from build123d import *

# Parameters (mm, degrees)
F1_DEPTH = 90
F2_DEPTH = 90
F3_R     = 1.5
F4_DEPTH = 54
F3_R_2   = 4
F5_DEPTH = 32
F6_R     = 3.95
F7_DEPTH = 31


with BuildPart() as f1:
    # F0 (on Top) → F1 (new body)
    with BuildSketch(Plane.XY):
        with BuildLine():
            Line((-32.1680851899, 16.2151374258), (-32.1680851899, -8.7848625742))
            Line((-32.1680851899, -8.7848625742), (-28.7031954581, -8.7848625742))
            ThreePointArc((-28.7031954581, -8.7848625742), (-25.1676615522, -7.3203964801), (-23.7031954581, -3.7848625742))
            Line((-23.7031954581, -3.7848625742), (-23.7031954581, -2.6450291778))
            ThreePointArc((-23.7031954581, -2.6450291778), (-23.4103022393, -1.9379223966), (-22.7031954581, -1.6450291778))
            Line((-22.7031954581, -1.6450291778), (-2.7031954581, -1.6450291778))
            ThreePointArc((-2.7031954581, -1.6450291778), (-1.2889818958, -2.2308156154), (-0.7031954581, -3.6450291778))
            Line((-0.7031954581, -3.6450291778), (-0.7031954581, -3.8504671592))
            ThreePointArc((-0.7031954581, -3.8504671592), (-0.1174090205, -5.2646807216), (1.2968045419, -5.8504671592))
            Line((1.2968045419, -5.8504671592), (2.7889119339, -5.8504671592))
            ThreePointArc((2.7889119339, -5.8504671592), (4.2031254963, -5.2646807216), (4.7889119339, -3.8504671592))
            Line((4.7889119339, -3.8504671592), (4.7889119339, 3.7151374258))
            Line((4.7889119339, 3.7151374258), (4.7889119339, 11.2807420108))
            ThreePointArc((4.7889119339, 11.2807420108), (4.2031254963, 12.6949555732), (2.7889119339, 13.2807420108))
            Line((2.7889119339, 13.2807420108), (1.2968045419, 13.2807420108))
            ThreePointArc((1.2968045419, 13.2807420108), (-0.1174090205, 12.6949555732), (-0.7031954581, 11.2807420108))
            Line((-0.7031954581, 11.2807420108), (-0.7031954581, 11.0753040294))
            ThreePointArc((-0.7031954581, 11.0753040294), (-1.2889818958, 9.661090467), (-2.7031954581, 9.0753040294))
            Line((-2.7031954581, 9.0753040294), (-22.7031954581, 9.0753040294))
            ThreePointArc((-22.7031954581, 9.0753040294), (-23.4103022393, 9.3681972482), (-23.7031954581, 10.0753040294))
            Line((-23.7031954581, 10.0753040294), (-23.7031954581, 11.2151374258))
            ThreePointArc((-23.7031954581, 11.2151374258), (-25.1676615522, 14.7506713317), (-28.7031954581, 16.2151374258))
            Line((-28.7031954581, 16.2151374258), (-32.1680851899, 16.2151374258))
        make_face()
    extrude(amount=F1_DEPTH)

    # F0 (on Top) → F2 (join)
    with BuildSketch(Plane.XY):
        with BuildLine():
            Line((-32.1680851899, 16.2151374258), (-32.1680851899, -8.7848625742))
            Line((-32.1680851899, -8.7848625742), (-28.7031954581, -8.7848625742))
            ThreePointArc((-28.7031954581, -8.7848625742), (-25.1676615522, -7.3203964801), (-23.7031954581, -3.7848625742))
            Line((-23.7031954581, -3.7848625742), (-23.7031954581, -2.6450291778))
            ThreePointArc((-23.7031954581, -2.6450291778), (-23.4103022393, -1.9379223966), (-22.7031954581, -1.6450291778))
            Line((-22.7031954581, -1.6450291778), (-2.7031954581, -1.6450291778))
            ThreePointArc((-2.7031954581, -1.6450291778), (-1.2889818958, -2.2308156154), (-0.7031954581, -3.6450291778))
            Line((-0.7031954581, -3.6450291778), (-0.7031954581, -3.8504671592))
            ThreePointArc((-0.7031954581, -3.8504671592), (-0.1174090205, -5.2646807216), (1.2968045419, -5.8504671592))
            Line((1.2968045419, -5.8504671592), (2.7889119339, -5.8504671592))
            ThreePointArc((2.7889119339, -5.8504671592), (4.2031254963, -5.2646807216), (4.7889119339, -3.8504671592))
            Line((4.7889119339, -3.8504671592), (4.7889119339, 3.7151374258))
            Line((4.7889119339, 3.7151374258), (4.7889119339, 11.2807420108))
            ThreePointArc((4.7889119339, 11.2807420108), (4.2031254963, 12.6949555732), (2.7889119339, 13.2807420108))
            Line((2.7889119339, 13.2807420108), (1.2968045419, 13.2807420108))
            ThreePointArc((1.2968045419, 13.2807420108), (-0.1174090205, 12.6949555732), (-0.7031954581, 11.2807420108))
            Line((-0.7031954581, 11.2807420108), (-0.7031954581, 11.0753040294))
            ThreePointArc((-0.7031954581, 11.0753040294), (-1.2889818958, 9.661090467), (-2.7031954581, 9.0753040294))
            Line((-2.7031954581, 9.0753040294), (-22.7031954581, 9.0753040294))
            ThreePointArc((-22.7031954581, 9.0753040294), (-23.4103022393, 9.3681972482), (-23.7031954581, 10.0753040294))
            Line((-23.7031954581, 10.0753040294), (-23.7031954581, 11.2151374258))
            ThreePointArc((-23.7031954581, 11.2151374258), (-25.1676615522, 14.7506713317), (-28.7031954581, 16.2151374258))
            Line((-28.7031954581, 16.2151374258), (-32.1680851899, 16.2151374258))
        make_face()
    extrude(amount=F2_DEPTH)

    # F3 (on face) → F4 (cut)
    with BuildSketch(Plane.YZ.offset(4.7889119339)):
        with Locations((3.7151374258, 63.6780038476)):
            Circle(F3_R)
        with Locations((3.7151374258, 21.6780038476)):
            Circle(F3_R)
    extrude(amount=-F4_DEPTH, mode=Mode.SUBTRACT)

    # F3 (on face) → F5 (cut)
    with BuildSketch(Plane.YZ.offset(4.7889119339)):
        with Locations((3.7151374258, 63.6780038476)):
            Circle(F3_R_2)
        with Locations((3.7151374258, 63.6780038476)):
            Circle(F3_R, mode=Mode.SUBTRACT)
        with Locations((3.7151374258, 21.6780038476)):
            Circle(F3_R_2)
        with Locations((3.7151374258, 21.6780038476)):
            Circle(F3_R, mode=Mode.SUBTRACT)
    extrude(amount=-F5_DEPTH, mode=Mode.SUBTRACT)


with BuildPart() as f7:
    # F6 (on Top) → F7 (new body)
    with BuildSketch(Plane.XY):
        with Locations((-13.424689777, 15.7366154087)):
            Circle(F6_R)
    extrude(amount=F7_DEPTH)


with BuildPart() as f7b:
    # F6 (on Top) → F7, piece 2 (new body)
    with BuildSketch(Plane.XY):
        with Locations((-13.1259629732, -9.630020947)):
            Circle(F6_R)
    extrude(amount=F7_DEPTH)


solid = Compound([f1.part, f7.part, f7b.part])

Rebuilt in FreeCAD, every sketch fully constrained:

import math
import FreeCAD as App
import Part
import Sketcher
Q = App.Units.Quantity

doc = App.newDocument("Part")
body = doc.addObject("PartDesign::Body", "Body")

# Sketch on XY plane
sketch1 = doc.addObject("Sketcher::SketchObject", "Sketch")
body.addObject(sketch1)
sketch1.AttachmentSupport = (doc.XY_Plane, [""])
sketch1.MapMode = "FlatFace"
sketch1.addGeometry(Part.LineSegment(App.Vector(-32.17, 16.22, 0), App.Vector(-32.17, -8.78, 0)), False)
sketch1.addGeometry(Part.LineSegment(App.Vector(-32.17, -8.78, 0), App.Vector(-28.7, -8.78, 0)), False)
sketch1.addGeometry(Part.ArcOfCircle(Part.Circle(App.Vector(-28.7, -3.78, 0), App.Vector(0, 0, 1), 5), math.radians(-90), math.radians(0)), False)
sketch1.addGeometry(Part.LineSegment(App.Vector(-23.7, -3.78, 0), App.Vector(-23.7, -2.65, 0)), False)
sketch1.addGeometry(Part.ArcOfCircle(Part.Circle(App.Vector(-22.7, -2.65, 0), App.Vector(0, 0, 1), 1), math.radians(90), math.radians(180)), False)
sketch1.addGeometry(Part.LineSegment(App.Vector(-22.7, -1.65, 0), App.Vector(-2.7, -1.65, 0)), False)
sketch1.addGeometry(Part.ArcOfCircle(Part.Circle(App.Vector(-2.7, -3.65, 0), App.Vector(0, 0, 1), 2), math.radians(0), math.radians(90)), False)
sketch1.addGeometry(Part.LineSegment(App.Vector(-0.7, -3.65, 0), App.Vector(-0.7, -3.85, 0)), False)
sketch1.addGeometry(Part.ArcOfCircle(Part.Circle(App.Vector(1.3, -3.85, 0), App.Vector(0, 0, 1), 2), math.radians(180), math.radians(270)), False)
sketch1.addGeometry(Part.LineSegment(App.Vector(1.3, -5.85, 0), App.Vector(2.79, -5.85, 0)), False)
sketch1.addGeometry(Part.ArcOfCircle(Part.Circle(App.Vector(2.79, -3.85, 0), App.Vector(0, 0, 1), 2), math.radians(-90), math.radians(0)), False)
sketch1.addGeometry(Part.LineSegment(App.Vector(4.79, -3.85, 0), App.Vector(4.79, 11.28, 0)), False)
sketch1.addGeometry(Part.ArcOfCircle(Part.Circle(App.Vector(2.79, 11.28, 0), App.Vector(0, 0, 1), 2), math.radians(0), math.radians(90)), False)
sketch1.addGeometry(Part.LineSegment(App.Vector(2.79, 13.28, 0), App.Vector(1.3, 13.28, 0)), False)
sketch1.addGeometry(Part.ArcOfCircle(Part.Circle(App.Vector(1.3, 11.28, 0), App.Vector(0, 0, 1), 2), math.radians(90), math.radians(180)), False)
sketch1.addGeometry(Part.LineSegment(App.Vector(-0.7, 11.28, 0), App.Vector(-0.7, 11.08, 0)), False)
sketch1.addGeometry(Part.ArcOfCircle(Part.Circle(App.Vector(-2.7, 11.08, 0), App.Vector(0, 0, 1), 2), math.radians(-90), math.radians(0)), False)
sketch1.addGeometry(Part.LineSegment(App.Vector(-2.7, 9.08, 0), App.Vector(-22.7, 9.08, 0)), False)
sketch1.addGeometry(Part.ArcOfCircle(Part.Circle(App.Vector(-22.7, 10.08, 0), App.Vector(0, 0, 1), 1), math.radians(180), math.radians(270)), False)
sketch1.addGeometry(Part.LineSegment(App.Vector(-23.7, 10.08, 0), App.Vector(-23.7, 11.22, 0)), False)
sketch1.addGeometry(Part.ArcOfCircle(Part.Circle(App.Vector(-28.7, 11.22, 0), App.Vector(0, 0, 1), 5), math.radians(0), math.radians(90)), False)
sketch1.addGeometry(Part.LineSegment(App.Vector(-28.7, 16.22, 0), App.Vector(-32.17, 16.22, 0)), False)
sketch1.addConstraint(Sketcher.Constraint("Coincident", 0, 2, 1, 1))
sketch1.addConstraint(Sketcher.Constraint("Tangent", 1, 2, 2, 1))
sketch1.addConstraint(Sketcher.Constraint("Tangent", 2, 2, 3, 1))
sketch1.addConstraint(Sketcher.Constraint("Tangent", 3, 2, 4, 2))
sketch1.addConstraint(Sketcher.Constraint("Tangent", 4, 1, 5, 1))
sketch1.addConstraint(Sketcher.Constraint("Tangent", 5, 2, 6, 2))
sketch1.addConstraint(Sketcher.Constraint("Tangent", 6, 1, 7, 1))
sketch1.addConstraint(Sketcher.Constraint("Tangent", 7, 2, 8, 1))
sketch1.addConstraint(Sketcher.Constraint("Tangent", 8, 2, 9, 1))
sketch1.addConstraint(Sketcher.Constraint("Tangent", 9, 2, 10, 1))
sketch1.addConstraint(Sketcher.Constraint("Tangent", 10, 2, 11, 1))
sketch1.addConstraint(Sketcher.Constraint("Tangent", 11, 2, 12, 1))
sketch1.addConstraint(Sketcher.Constraint("Tangent", 12, 2, 13, 1))
sketch1.addConstraint(Sketcher.Constraint("Tangent", 13, 2, 14, 1))
sketch1.addConstraint(Sketcher.Constraint("Tangent", 14, 2, 15, 1))
sketch1.addConstraint(Sketcher.Constraint("Tangent", 15, 2, 16, 2))
sketch1.addConstraint(Sketcher.Constraint("Tangent", 16, 1, 17, 1))
sketch1.addConstraint(Sketcher.Constraint("Tangent", 17, 2, 18, 2))
sketch1.addConstraint(Sketcher.Constraint("Tangent", 18, 1, 19, 1))
sketch1.addConstraint(Sketcher.Constraint("Tangent", 19, 2, 20, 1))
sketch1.addConstraint(Sketcher.Constraint("Tangent", 20, 2, 21, 1))
sketch1.addConstraint(Sketcher.Constraint("Coincident", 21, 2, 0, 1))
sketch1.addConstraint(Sketcher.Constraint("Vertical", 0))
sketch1.addConstraint(Sketcher.Constraint("Horizontal", 1))
sketch1.addConstraint(Sketcher.Constraint("Vertical", 3))
sketch1.addConstraint(Sketcher.Constraint("Horizontal", 5))
sketch1.addConstraint(Sketcher.Constraint("Vertical", 7))
sketch1.addConstraint(Sketcher.Constraint("Horizontal", 9))
sketch1.addConstraint(Sketcher.Constraint("Vertical", 11))
sketch1.addConstraint(Sketcher.Constraint("Horizontal", 13))
sketch1.addConstraint(Sketcher.Constraint("Vertical", 15))
sketch1.addConstraint(Sketcher.Constraint("Horizontal", 17))
sketch1.addConstraint(Sketcher.Constraint("Vertical", 19))
sketch1.addConstraint(Sketcher.Constraint("Horizontal", 21))
sketch1.addConstraint(Sketcher.Constraint("Equal", 6, 8))
sketch1.addConstraint(Sketcher.Constraint("Equal", 8, 10))
sketch1.addConstraint(Sketcher.Constraint("Equal", 10, 12))
sketch1.addConstraint(Sketcher.Constraint("Equal", 12, 14))
sketch1.addConstraint(Sketcher.Constraint("Equal", 14, 16))
sketch1.addConstraint(Sketcher.Constraint("Equal", 4, 18))
sketch1.addConstraint(Sketcher.Constraint("Equal", 2, 20))
sketch1.addConstraint(Sketcher.Constraint("Vertical", 8, 3, 14, 3))
sketch1.addConstraint(Sketcher.Constraint("Vertical", 4, 3, 18, 3))
sketch1.addConstraint(Sketcher.Constraint("Equal", 7, 15))
sketch1.addConstraint(Sketcher.Constraint("Equal", 3, 19))
sketch1.addConstraint(Sketcher.Constraint("Radius", 2, Q("5 mm")))
sketch1.addConstraint(Sketcher.Constraint("Radius", 4, Q("1 mm")))
sketch1.addConstraint(Sketcher.Constraint("Radius", 6, Q("2 mm")))
sketch1.addConstraint(Sketcher.Constraint("DistanceX", 5, 1, 5, 2, Q("20 mm")))
sketch1.addConstraint(Sketcher.Constraint("DistanceY", 0, 2, 0, 1, Q("25 mm")))
sketch1.addConstraint(Sketcher.Constraint("DistanceX", 1, 1, 1, 2, Q("3.46489 mm")))
sketch1.addConstraint(Sketcher.Constraint("DistanceY", 11, 1, 11, 2, Q("15.131209 mm")))
sketch1.addConstraint(Sketcher.Constraint("DistanceX", 9, 1, 9, 2, Q("1.492107 mm")))
sketch1.addConstraint(Sketcher.Constraint("DistanceY", 3, 1, 3, 2, Q("1.139833 mm")))
sketch1.addConstraint(Sketcher.Constraint("DistanceY", 4, 3, -1, 1, Q("2.645029 mm")))
sketch1.addConstraint(Sketcher.Constraint("DistanceX", -1, 1, 10, 3, Q("2.788912 mm")))
pad1 = doc.addObject("PartDesign::Pad", "Pad")
body.addObject(pad1)
pad1.Profile = sketch1
pad1.Length = 90

# Sketch on XY plane
sketch2 = doc.addObject("Sketcher::SketchObject", "Sketch001")
body.addObject(sketch2)
sketch2.AttachmentSupport = (doc.XY_Plane, [""])
sketch2.MapMode = "FlatFace"
sketch2.addGeometry(Part.LineSegment(App.Vector(-32.17, 16.22, 0), App.Vector(-32.17, -8.78, 0)), False)
sketch2.addGeometry(Part.LineSegment(App.Vector(-32.17, -8.78, 0), App.Vector(-28.7, -8.78, 0)), False)
sketch2.addGeometry(Part.ArcOfCircle(Part.Circle(App.Vector(-28.7, -3.78, 0), App.Vector(0, 0, 1), 5), math.radians(-90), math.radians(0)), False)
sketch2.addGeometry(Part.LineSegment(App.Vector(-23.7, -3.78, 0), App.Vector(-23.7, -2.65, 0)), False)
sketch2.addGeometry(Part.ArcOfCircle(Part.Circle(App.Vector(-22.7, -2.65, 0), App.Vector(0, 0, 1), 1), math.radians(90), math.radians(180)), False)
sketch2.addGeometry(Part.LineSegment(App.Vector(-22.7, -1.65, 0), App.Vector(-2.7, -1.65, 0)), False)
sketch2.addGeometry(Part.ArcOfCircle(Part.Circle(App.Vector(-2.7, -3.65, 0), App.Vector(0, 0, 1), 2), math.radians(0), math.radians(90)), False)
sketch2.addGeometry(Part.LineSegment(App.Vector(-0.7, -3.65, 0), App.Vector(-0.7, -3.85, 0)), False)
sketch2.addGeometry(Part.ArcOfCircle(Part.Circle(App.Vector(1.3, -3.85, 0), App.Vector(0, 0, 1), 2), math.radians(180), math.radians(270)), False)
sketch2.addGeometry(Part.LineSegment(App.Vector(1.3, -5.85, 0), App.Vector(2.79, -5.85, 0)), False)
sketch2.addGeometry(Part.ArcOfCircle(Part.Circle(App.Vector(2.79, -3.85, 0), App.Vector(0, 0, 1), 2), math.radians(-90), math.radians(0)), False)
sketch2.addGeometry(Part.LineSegment(App.Vector(4.79, -3.85, 0), App.Vector(4.79, 11.28, 0)), False)
sketch2.addGeometry(Part.ArcOfCircle(Part.Circle(App.Vector(2.79, 11.28, 0), App.Vector(0, 0, 1), 2), math.radians(0), math.radians(90)), False)
sketch2.addGeometry(Part.LineSegment(App.Vector(2.79, 13.28, 0), App.Vector(1.3, 13.28, 0)), False)
sketch2.addGeometry(Part.ArcOfCircle(Part.Circle(App.Vector(1.3, 11.28, 0), App.Vector(0, 0, 1), 2), math.radians(90), math.radians(180)), False)
sketch2.addGeometry(Part.LineSegment(App.Vector(-0.7, 11.28, 0), App.Vector(-0.7, 11.08, 0)), False)
sketch2.addGeometry(Part.ArcOfCircle(Part.Circle(App.Vector(-2.7, 11.08, 0), App.Vector(0, 0, 1), 2), math.radians(-90), math.radians(0)), False)
sketch2.addGeometry(Part.LineSegment(App.Vector(-2.7, 9.08, 0), App.Vector(-22.7, 9.08, 0)), False)
sketch2.addGeometry(Part.ArcOfCircle(Part.Circle(App.Vector(-22.7, 10.08, 0), App.Vector(0, 0, 1), 1), math.radians(180), math.radians(270)), False)
sketch2.addGeometry(Part.LineSegment(App.Vector(-23.7, 10.08, 0), App.Vector(-23.7, 11.22, 0)), False)
sketch2.addGeometry(Part.ArcOfCircle(Part.Circle(App.Vector(-28.7, 11.22, 0), App.Vector(0, 0, 1), 5), math.radians(0), math.radians(90)), False)
sketch2.addGeometry(Part.LineSegment(App.Vector(-28.7, 16.22, 0), App.Vector(-32.17, 16.22, 0)), False)
sketch2.addConstraint(Sketcher.Constraint("Coincident", 0, 2, 1, 1))
sketch2.addConstraint(Sketcher.Constraint("Tangent", 1, 2, 2, 1))
sketch2.addConstraint(Sketcher.Constraint("Tangent", 2, 2, 3, 1))
sketch2.addConstraint(Sketcher.Constraint("Tangent", 3, 2, 4, 2))
sketch2.addConstraint(Sketcher.Constraint("Tangent", 4, 1, 5, 1))
sketch2.addConstraint(Sketcher.Constraint("Tangent", 5, 2, 6, 2))
sketch2.addConstraint(Sketcher.Constraint("Tangent", 6, 1, 7, 1))
sketch2.addConstraint(Sketcher.Constraint("Tangent", 7, 2, 8, 1))
sketch2.addConstraint(Sketcher.Constraint("Tangent", 8, 2, 9, 1))
sketch2.addConstraint(Sketcher.Constraint("Tangent", 9, 2, 10, 1))
sketch2.addConstraint(Sketcher.Constraint("Tangent", 10, 2, 11, 1))
sketch2.addConstraint(Sketcher.Constraint("Tangent", 11, 2, 12, 1))
sketch2.addConstraint(Sketcher.Constraint("Tangent", 12, 2, 13, 1))
sketch2.addConstraint(Sketcher.Constraint("Tangent", 13, 2, 14, 1))
sketch2.addConstraint(Sketcher.Constraint("Tangent", 14, 2, 15, 1))
sketch2.addConstraint(Sketcher.Constraint("Tangent", 15, 2, 16, 2))
sketch2.addConstraint(Sketcher.Constraint("Tangent", 16, 1, 17, 1))
sketch2.addConstraint(Sketcher.Constraint("Tangent", 17, 2, 18, 2))
sketch2.addConstraint(Sketcher.Constraint("Tangent", 18, 1, 19, 1))
sketch2.addConstraint(Sketcher.Constraint("Tangent", 19, 2, 20, 1))
sketch2.addConstraint(Sketcher.Constraint("Tangent", 20, 2, 21, 1))
sketch2.addConstraint(Sketcher.Constraint("Coincident", 21, 2, 0, 1))
sketch2.addConstraint(Sketcher.Constraint("Vertical", 0))
sketch2.addConstraint(Sketcher.Constraint("Horizontal", 1))
sketch2.addConstraint(Sketcher.Constraint("Vertical", 3))
sketch2.addConstraint(Sketcher.Constraint("Horizontal", 5))
sketch2.addConstraint(Sketcher.Constraint("Vertical", 7))
sketch2.addConstraint(Sketcher.Constraint("Horizontal", 9))
sketch2.addConstraint(Sketcher.Constraint("Vertical", 11))
sketch2.addConstraint(Sketcher.Constraint("Horizontal", 13))
sketch2.addConstraint(Sketcher.Constraint("Vertical", 15))
sketch2.addConstraint(Sketcher.Constraint("Horizontal", 17))
sketch2.addConstraint(Sketcher.Constraint("Vertical", 19))
sketch2.addConstraint(Sketcher.Constraint("Horizontal", 21))
sketch2.addConstraint(Sketcher.Constraint("Equal", 6, 8))
sketch2.addConstraint(Sketcher.Constraint("Equal", 8, 10))
sketch2.addConstraint(Sketcher.Constraint("Equal", 10, 12))
sketch2.addConstraint(Sketcher.Constraint("Equal", 12, 14))
sketch2.addConstraint(Sketcher.Constraint("Equal", 14, 16))
sketch2.addConstraint(Sketcher.Constraint("Equal", 4, 18))
sketch2.addConstraint(Sketcher.Constraint("Equal", 2, 20))
sketch2.addConstraint(Sketcher.Constraint("Vertical", 8, 3, 14, 3))
sketch2.addConstraint(Sketcher.Constraint("Vertical", 4, 3, 18, 3))
sketch2.addConstraint(Sketcher.Constraint("Equal", 7, 15))
sketch2.addConstraint(Sketcher.Constraint("Equal", 3, 19))
sketch2.addConstraint(Sketcher.Constraint("Radius", 2, Q("5 mm")))
sketch2.addConstraint(Sketcher.Constraint("Radius", 4, Q("1 mm")))
sketch2.addConstraint(Sketcher.Constraint("Radius", 6, Q("2 mm")))
sketch2.addConstraint(Sketcher.Constraint("DistanceX", 5, 1, 5, 2, Q("20 mm")))
sketch2.addConstraint(Sketcher.Constraint("DistanceY", 0, 2, 0, 1, Q("25 mm")))
sketch2.addConstraint(Sketcher.Constraint("DistanceX", 1, 1, 1, 2, Q("3.46489 mm")))
sketch2.addConstraint(Sketcher.Constraint("DistanceY", 11, 1, 11, 2, Q("15.131209 mm")))
sketch2.addConstraint(Sketcher.Constraint("DistanceX", 9, 1, 9, 2, Q("1.492107 mm")))
sketch2.addConstraint(Sketcher.Constraint("DistanceY", 3, 1, 3, 2, Q("1.139833 mm")))
sketch2.addConstraint(Sketcher.Constraint("DistanceY", 4, 3, -1, 1, Q("2.645029 mm")))
sketch2.addConstraint(Sketcher.Constraint("DistanceX", -1, 1, 10, 3, Q("2.788912 mm")))
pad2 = doc.addObject("PartDesign::Pad", "Pad001")
body.addObject(pad2)
pad2.Profile = sketch2
pad2.Length = 90

# Sketch on YZ plane
sketch3 = doc.addObject("Sketcher::SketchObject", "Sketch002")
body.addObject(sketch3)
sketch3.AttachmentSupport = (doc.YZ_Plane, [""])
sketch3.MapMode = "FlatFace"
sketch3.AttachmentOffset = App.Placement(App.Vector(0, 0, 4.788912), App.Rotation())
sketch3.addGeometry(Part.Circle(App.Vector(3.7, 63.7, 0), App.Vector(0, 0, 1), 1.5), False)
sketch3.addGeometry(Part.Circle(App.Vector(3.7, 21.7, 0), App.Vector(0, 0, 1), 1.5), False)
sketch3.addConstraint(Sketcher.Constraint("Equal", 0, 1))
sketch3.addConstraint(Sketcher.Constraint("Vertical", 0, 3, 1, 3))
sketch3.addConstraint(Sketcher.Constraint("Diameter", 0, Q("3 mm")))
sketch3.addConstraint(Sketcher.Constraint("DistanceY", 1, 3, 0, 3, Q("42 mm")))
sketch3.addConstraint(Sketcher.Constraint("DistanceX", -1, 1, 0, 3, Q("3.715137 mm")))
sketch3.addConstraint(Sketcher.Constraint("DistanceY", -1, 1, 0, 3, Q("63.678004 mm")))
pocket1 = doc.addObject("PartDesign::Pocket", "Pocket")
body.addObject(pocket1)
pocket1.Profile = sketch3
pocket1.Length = 54

# Sketch on YZ plane
sketch4 = doc.addObject("Sketcher::SketchObject", "Sketch003")
body.addObject(sketch4)
sketch4.AttachmentSupport = (doc.YZ_Plane, [""])
sketch4.MapMode = "FlatFace"
sketch4.AttachmentOffset = App.Placement(App.Vector(0, 0, 4.788912), App.Rotation())
sketch4.addGeometry(Part.Circle(App.Vector(3.7, 63.7, 0), App.Vector(0, 0, 1), 4), False)
sketch4.addGeometry(Part.Circle(App.Vector(3.7, 63.7, 0), App.Vector(0, 0, 1), 1.5), False)
sketch4.addGeometry(Part.Circle(App.Vector(3.7, 21.7, 0), App.Vector(0, 0, 1), 4), False)
sketch4.addGeometry(Part.Circle(App.Vector(3.7, 21.7, 0), App.Vector(0, 0, 1), 1.5), False)
sketch4.addConstraint(Sketcher.Constraint("Coincident", 1, 3, 0, 3))
sketch4.addConstraint(Sketcher.Constraint("Coincident", 3, 3, 2, 3))
sketch4.addConstraint(Sketcher.Constraint("Equal", 0, 2))
sketch4.addConstraint(Sketcher.Constraint("Equal", 1, 3))
sketch4.addConstraint(Sketcher.Constraint("Vertical", 1, 3, 2, 3))
sketch4.addConstraint(Sketcher.Constraint("Diameter", 0, Q("8 mm")))
sketch4.addConstraint(Sketcher.Constraint("Diameter", 1, Q("3 mm")))
sketch4.addConstraint(Sketcher.Constraint("DistanceY", 2, 3, 0, 3, Q("42 mm")))
sketch4.addConstraint(Sketcher.Constraint("DistanceX", -1, 1, 0, 3, Q("3.715137 mm")))
sketch4.addConstraint(Sketcher.Constraint("DistanceY", -1, 1, 0, 3, Q("63.678004 mm")))
pocket2 = doc.addObject("PartDesign::Pocket", "Pocket001")
body.addObject(pocket2)
pocket2.Profile = sketch4
pocket2.Length = 32
body2 = doc.addObject("PartDesign::Body", "Body001")

# Sketch on XY plane
sketch5 = doc.addObject("Sketcher::SketchObject", "Sketch004")
body2.addObject(sketch5)
sketch5.AttachmentSupport = (doc.getObject("XY_Plane001"), [""])
sketch5.MapMode = "FlatFace"
sketch5.addGeometry(Part.Circle(App.Vector(-13.4, 15.7, 0), App.Vector(0, 0, 1), 4), False)
sketch5.addConstraint(Sketcher.Constraint("Diameter", 0, Q("7.9 mm")))
sketch5.addConstraint(Sketcher.Constraint("DistanceX", 0, 3, -1, 1, Q("13.42469 mm")))
sketch5.addConstraint(Sketcher.Constraint("DistanceY", -1, 1, 0, 3, Q("15.736615 mm")))
pad3 = doc.addObject("PartDesign::Pad", "Pad002")
body2.addObject(pad3)
pad3.Profile = sketch5
pad3.Length = 31
body3 = doc.addObject("PartDesign::Body", "Body002")

# Sketch on XY plane
sketch6 = doc.addObject("Sketcher::SketchObject", "Sketch005")
body3.addObject(sketch6)
sketch6.AttachmentSupport = (doc.getObject("XY_Plane002"), [""])
sketch6.MapMode = "FlatFace"
sketch6.addGeometry(Part.Circle(App.Vector(-13.1, -9.6, 0), App.Vector(0, 0, 1), 4), False)
sketch6.addConstraint(Sketcher.Constraint("Diameter", 0, Q("7.9 mm")))
sketch6.addConstraint(Sketcher.Constraint("DistanceY", 0, 3, -1, 1, Q("9.630021 mm")))
sketch6.addConstraint(Sketcher.Constraint("DistanceX", 0, 3, -1, 1, Q("13.125963 mm")))
pad4 = doc.addObject("PartDesign::Pad", "Pad003")
body3.addObject(pad4)
pad4.Profile = sketch6
pad4.Length = 31

doc.recompute()
